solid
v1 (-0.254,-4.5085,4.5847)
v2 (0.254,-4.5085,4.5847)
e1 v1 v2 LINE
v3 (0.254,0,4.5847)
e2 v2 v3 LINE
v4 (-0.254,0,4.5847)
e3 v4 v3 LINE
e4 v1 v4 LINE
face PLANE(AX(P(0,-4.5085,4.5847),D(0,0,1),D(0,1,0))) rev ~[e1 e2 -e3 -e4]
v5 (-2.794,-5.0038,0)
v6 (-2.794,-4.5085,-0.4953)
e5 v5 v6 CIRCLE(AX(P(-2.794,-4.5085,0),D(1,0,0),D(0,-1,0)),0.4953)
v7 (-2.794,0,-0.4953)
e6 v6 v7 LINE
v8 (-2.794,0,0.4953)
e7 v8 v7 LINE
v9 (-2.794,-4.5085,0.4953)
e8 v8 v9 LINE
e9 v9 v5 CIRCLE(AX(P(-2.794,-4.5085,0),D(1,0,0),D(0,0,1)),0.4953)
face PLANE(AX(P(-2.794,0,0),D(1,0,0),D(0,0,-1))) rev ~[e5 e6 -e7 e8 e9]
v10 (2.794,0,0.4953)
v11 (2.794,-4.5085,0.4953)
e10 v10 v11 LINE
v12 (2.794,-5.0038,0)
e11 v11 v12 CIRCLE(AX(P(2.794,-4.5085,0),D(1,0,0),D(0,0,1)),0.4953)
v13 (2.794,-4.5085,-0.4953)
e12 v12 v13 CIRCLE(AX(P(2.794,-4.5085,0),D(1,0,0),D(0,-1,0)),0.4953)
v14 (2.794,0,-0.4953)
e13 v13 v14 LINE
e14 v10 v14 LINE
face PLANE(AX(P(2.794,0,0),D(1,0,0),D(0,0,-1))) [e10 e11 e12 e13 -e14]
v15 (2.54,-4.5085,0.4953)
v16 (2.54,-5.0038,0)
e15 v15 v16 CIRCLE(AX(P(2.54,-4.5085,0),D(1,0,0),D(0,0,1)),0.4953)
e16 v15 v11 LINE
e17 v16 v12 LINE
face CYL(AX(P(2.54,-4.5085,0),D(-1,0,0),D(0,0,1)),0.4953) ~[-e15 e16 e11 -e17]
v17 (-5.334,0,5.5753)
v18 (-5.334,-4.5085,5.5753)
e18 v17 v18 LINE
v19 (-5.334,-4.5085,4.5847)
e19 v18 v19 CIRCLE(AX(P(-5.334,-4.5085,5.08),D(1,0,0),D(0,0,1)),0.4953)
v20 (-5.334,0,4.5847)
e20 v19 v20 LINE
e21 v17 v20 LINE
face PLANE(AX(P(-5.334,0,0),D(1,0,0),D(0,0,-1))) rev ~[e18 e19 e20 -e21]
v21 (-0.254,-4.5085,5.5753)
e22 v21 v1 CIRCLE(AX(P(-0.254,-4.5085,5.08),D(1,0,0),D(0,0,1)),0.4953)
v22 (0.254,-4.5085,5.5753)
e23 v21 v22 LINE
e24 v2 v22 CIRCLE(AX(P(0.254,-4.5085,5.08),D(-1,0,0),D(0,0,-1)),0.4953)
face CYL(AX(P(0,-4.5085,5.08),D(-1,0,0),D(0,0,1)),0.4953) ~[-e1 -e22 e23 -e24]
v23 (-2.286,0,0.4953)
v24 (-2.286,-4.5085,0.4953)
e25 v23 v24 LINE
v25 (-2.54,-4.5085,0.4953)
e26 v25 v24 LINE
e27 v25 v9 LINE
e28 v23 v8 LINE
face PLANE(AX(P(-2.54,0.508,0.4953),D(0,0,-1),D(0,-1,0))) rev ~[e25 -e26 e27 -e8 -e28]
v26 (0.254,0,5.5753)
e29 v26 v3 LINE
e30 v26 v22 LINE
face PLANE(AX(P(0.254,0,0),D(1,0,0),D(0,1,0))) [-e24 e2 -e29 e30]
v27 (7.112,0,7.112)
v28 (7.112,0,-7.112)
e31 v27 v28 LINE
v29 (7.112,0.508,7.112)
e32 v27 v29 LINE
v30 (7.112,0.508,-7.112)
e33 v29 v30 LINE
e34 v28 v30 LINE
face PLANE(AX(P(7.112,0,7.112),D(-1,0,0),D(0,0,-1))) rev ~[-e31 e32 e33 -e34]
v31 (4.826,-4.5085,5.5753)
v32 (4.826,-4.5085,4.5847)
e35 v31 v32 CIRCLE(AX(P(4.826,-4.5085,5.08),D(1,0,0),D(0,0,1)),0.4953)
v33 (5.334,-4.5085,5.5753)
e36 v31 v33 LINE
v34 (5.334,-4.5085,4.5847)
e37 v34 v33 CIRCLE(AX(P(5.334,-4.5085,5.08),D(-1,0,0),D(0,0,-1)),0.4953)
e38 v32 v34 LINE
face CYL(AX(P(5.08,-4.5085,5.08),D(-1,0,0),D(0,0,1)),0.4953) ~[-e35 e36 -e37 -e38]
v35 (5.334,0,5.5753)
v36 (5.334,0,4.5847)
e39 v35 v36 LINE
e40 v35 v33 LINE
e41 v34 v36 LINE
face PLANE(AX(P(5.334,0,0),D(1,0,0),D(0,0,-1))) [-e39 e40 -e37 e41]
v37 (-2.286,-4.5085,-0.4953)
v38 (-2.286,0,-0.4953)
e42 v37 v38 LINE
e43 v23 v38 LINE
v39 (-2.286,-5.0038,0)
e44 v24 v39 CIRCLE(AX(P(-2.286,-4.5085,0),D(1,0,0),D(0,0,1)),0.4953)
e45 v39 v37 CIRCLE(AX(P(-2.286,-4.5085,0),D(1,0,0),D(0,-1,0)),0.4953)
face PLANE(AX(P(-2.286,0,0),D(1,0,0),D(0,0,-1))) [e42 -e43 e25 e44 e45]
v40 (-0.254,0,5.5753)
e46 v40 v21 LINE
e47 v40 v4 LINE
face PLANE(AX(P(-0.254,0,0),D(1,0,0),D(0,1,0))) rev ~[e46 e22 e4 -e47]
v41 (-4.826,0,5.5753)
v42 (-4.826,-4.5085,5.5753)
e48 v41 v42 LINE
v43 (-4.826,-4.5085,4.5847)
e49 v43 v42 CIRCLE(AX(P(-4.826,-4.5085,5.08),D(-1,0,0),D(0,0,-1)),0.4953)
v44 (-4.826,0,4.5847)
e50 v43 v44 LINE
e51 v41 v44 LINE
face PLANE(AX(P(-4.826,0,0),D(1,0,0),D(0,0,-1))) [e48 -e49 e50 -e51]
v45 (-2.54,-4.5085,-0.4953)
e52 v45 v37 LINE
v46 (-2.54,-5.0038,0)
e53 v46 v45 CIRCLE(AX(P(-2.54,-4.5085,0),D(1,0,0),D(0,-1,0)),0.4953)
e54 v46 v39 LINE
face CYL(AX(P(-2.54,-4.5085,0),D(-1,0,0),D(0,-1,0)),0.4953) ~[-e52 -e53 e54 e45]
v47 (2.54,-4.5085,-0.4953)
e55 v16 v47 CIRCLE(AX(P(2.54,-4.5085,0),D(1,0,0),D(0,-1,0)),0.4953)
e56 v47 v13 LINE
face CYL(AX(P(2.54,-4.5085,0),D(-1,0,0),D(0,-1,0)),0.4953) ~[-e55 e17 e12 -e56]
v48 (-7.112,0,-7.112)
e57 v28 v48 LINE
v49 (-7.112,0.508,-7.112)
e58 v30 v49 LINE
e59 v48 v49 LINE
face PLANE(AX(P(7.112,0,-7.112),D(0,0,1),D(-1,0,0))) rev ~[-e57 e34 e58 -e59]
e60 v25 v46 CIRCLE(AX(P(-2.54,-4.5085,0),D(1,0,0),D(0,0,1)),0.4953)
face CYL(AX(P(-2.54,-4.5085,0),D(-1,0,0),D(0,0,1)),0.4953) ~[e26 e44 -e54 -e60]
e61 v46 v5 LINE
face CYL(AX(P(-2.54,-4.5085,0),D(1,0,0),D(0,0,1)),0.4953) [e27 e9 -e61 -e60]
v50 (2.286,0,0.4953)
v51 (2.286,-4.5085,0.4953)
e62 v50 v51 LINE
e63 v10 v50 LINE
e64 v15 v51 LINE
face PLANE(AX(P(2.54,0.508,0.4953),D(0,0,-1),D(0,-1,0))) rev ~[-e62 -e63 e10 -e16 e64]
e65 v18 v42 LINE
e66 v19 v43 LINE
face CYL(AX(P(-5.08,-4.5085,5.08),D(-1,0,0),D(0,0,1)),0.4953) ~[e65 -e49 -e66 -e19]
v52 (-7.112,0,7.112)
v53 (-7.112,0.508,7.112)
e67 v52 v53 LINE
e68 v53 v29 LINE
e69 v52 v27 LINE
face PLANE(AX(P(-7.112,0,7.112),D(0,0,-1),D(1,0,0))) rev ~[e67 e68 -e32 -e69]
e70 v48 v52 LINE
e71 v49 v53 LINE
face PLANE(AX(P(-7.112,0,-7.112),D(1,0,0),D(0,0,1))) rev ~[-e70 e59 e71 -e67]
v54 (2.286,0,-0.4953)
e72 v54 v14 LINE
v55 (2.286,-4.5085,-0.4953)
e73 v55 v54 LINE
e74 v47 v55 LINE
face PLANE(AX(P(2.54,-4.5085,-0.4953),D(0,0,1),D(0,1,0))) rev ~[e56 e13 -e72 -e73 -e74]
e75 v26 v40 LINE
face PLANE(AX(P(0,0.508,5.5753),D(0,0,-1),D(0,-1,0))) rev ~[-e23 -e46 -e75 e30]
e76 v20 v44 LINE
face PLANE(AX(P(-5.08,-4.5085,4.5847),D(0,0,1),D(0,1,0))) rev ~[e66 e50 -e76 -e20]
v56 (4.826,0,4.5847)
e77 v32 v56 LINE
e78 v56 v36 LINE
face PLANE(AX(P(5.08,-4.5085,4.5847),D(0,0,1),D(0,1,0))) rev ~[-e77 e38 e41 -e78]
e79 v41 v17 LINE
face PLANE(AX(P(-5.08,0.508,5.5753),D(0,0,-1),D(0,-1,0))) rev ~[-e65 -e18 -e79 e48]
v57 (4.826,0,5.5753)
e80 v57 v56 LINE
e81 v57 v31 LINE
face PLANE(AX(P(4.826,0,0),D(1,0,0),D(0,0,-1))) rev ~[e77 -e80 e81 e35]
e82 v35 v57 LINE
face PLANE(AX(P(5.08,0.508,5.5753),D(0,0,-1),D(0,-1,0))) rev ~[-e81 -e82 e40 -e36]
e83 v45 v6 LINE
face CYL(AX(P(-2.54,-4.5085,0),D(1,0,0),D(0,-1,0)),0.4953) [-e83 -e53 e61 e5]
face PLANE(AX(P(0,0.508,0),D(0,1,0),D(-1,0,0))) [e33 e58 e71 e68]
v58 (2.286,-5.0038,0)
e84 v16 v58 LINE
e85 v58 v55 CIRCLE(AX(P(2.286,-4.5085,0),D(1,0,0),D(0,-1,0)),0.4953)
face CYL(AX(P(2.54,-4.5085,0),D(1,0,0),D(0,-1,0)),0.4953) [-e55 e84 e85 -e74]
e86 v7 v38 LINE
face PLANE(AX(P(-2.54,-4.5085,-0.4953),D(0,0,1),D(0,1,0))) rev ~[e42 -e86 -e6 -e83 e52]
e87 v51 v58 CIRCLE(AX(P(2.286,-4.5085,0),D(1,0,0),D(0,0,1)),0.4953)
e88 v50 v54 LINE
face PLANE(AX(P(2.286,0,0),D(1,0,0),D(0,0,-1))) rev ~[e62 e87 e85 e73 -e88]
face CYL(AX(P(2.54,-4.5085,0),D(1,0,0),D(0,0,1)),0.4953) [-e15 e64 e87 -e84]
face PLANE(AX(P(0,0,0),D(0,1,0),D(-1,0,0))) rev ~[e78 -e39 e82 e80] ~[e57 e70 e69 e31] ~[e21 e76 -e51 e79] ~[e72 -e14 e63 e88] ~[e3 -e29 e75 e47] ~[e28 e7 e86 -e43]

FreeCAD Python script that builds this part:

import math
import FreeCAD as App
import Part
import Sketcher
Q = App.Units.Quantity

doc = App.newDocument("Part")
body = doc.addObject("PartDesign::Body", "Body")

sketch1 = doc.addObject("Sketcher::SketchObject", "Sketch")
body.addObject(sketch1)
sketch1.AttachmentSupport = (doc.XZ_Plane, [""])
sketch1.MapMode = "FlatFace"
sketch1.addGeometry([
    Part.LineSegment(App.Vector(7, -7, 0), App.Vector(-7, -7, 0)),
    Part.LineSegment(App.Vector(-7, -7, 0), App.Vector(-7, 7, 0)),
    Part.LineSegment(App.Vector(-7, 7, 0), App.Vector(7, 7, 0)),
    Part.LineSegment(App.Vector(7, 7, 0), App.Vector(7, -7, 0)),
], False)
sketch1.addConstraint([
    Sketcher.Constraint("Coincident", 0, 2, 1, 1),
    Sketcher.Constraint("Coincident", 1, 2, 2, 1),
    Sketcher.Constraint("Coincident", 2, 2, 3, 1),
    Sketcher.Constraint("Coincident", 3, 2, 0, 1),
    Sketcher.Constraint("Horizontal", 0),
    Sketcher.Constraint("Vertical", 1),
    Sketcher.Constraint("Horizontal", 2),
    Sketcher.Constraint("Vertical", 3),
    Sketcher.Constraint("Symmetric", 0, 2, 2, 2, -1, 1),
    Sketcher.Constraint("Equal", 2, 1),
    Sketcher.Constraint("DistanceX", 0, 2, 0, 1, Q("0.56 in")),
])
pad1 = doc.addObject("PartDesign::Pad", "Pad")
body.addObject(pad1)
pad1.Profile = sketch1
pad1.Length = Q("0.02 in")
pad1.Reversed = True

sketch2 = doc.addObject("Sketcher::SketchObject", "Sketch001")
body.addObject(sketch2)
sketch2.AttachmentSupport = (doc.YZ_Plane, [""])
sketch2.MapMode = "FlatFace"
sketch2.AttachmentOffset = App.Placement(App.Vector(0, 0, -0.2 * 25.4), App.Rotation())
sketch2.addGeometry([
    Part.LineSegment(App.Vector(0.51, 5.58, 0), App.Vector(-4.51, 5.58, 0)),
    Part.ArcOfCircle(Part.Circle(App.Vector(-4.51, 5.08, 0), App.Vector(0, 0, 1), 0.5), math.radians(90), math.radians(270)),
    Part.LineSegment(App.Vector(-4.51, 4.58, 0), App.Vector(0.51, 4.58, 0)),
    Part.LineSegment(App.Vector(0.51, 4.58, 0), App.Vector(0.51, 5.58, 0)),
], False)
sketch2.addConstraint([
    Sketcher.Constraint("Tangent", 0, 2, 1, 1),
    Sketcher.Constraint("Tangent", 1, 2, 2, 1),
    Sketcher.Constraint("Coincident", 2, 2, 3, 1),
    Sketcher.Constraint("Coincident", 3, 2, 0, 1),
    Sketcher.Constraint("Horizontal", 0),
    Sketcher.Constraint("Horizontal", 2),
    Sketcher.Constraint("Vertical", 3),
    Sketcher.Constraint("DistanceY", -1, 1, 1, 3, Q("0.2 in")),
    Sketcher.Constraint("Radius", 1, Q("0.0195 in")),
    Sketcher.Constraint("DistanceX", -1, 1, 2, 2, Q("0.02 in")),
    Sketcher.Constraint("DistanceX", 0, 2, 0, 1, Q("0.1975 in")),
])
pad2 = doc.addObject("PartDesign::Pad", "Pad001")
body.addObject(pad2)
pad2.Profile = sketch2
pad2.Length = Q("0.02 in")
pad2.Midplane = True

sketch3 = doc.addObject("Sketcher::SketchObject", "Sketch002")
body.addObject(sketch3)
sketch3.AttachmentSupport = (doc.YZ_Plane, [""])
sketch3.MapMode = "FlatFace"
sketch3.addGeometry([
    Part.LineSegment(App.Vector(0.51, 5.58, 0), App.Vector(-4.51, 5.58, 0)),
    Part.ArcOfCircle(Part.Circle(App.Vector(-4.51, 5.08, 0), App.Vector(0, 0, 1), 0.5), math.radians(90), math.radians(270)),
    Part.LineSegment(App.Vector(-4.51, 4.58, 0), App.Vector(0.51, 4.58, 0)),
    Part.LineSegment(App.Vector(0.51, 4.58, 0), App.Vector(0.51, 5.58, 0)),
], False)
sketch3.addConstraint([
    Sketcher.Constraint("Tangent", 0, 2, 1, 1),
    Sketcher.Constraint("Tangent", 1, 2, 2, 1),
    Sketcher.Constraint("Coincident", 2, 2, 3, 1),
    Sketcher.Constraint("Coincident", 3, 2, 0, 1),
    Sketcher.Constraint("Horizontal", 0),
    Sketcher.Constraint("Horizontal", 2),
    Sketcher.Constraint("Vertical", 3),
    Sketcher.Constraint("DistanceY", -1, 1, 1, 3, Q("0.2 in")),
    Sketcher.Constraint("Radius", 1, Q("0.0195 in")),
    Sketcher.Constraint("DistanceX", -1, 1, 2, 2, Q("0.02 in")),
    Sketcher.Constraint("DistanceX", 0, 2, 0, 1, Q("0.1975 in")),
])
pad3 = doc.addObject("PartDesign::Pad", "Pad002")
body.addObject(pad3)
pad3.Profile = sketch3
pad3.Length = Q("0.02 in")
pad3.Midplane = True

sketch4 = doc.addObject("Sketcher::SketchObject", "Sketch003")
body.addObject(sketch4)
sketch4.AttachmentSupport = (doc.YZ_Plane, [""])
sketch4.MapMode = "FlatFace"
sketch4.AttachmentOffset = App.Placement(App.Vector(0, 0, 0.2 * 25.4), App.Rotation())
sketch4.addGeometry([
    Part.LineSegment(App.Vector(0.51, 5.58, 0), App.Vector(-4.51, 5.58, 0)),
    Part.ArcOfCircle(Part.Circle(App.Vector(-4.51, 5.08, 0), App.Vector(0, 0, 1), 0.5), math.radians(90), math.radians(270)),
    Part.LineSegment(App.Vector(-4.51, 4.58, 0), App.Vector(0.51, 4.58, 0)),
    Part.LineSegment(App.Vector(0.51, 4.58, 0), App.Vector(0.51, 5.58, 0)),
], False)
sketch4.addConstraint([
    Sketcher.Constraint("Tangent", 0, 2, 1, 1),
    Sketcher.Constraint("Tangent", 1, 2, 2, 1),
    Sketcher.Constraint("Coincident", 2, 2, 3, 1),
    Sketcher.Constraint("Coincident", 3, 2, 0, 1),
    Sketcher.Constraint("Horizontal", 0),
    Sketcher.Constraint("Horizontal", 2),
    Sketcher.Constraint("Vertical", 3),
    Sketcher.Constraint("DistanceY", -1, 1, 1, 3, Q("0.2 in")),
    Sketcher.Constraint("Radius", 1, Q("0.0195 in")),
    Sketcher.Constraint("DistanceX", -1, 1, 2, 2, Q("0.02 in")),
    Sketcher.Constraint("DistanceX", 0, 2, 0, 1, Q("0.1975 in")),
])
pad4 = doc.addObject("PartDesign::Pad", "Pad003")
body.addObject(pad4)
pad4.Profile = sketch4
pad4.Length = Q("0.02 in")
pad4.Midplane = True

sketch5 = doc.addObject("Sketcher::SketchObject", "Sketch004")
body.addObject(sketch5)
sketch5.AttachmentSupport = (doc.YZ_Plane, [""])
sketch5.MapMode = "FlatFace"
sketch5.AttachmentOffset = App.Placement(App.Vector(0, 0, -0.1 * 25.4), App.Rotation())
sketch5.addGeometry([
    Part.LineSegment(App.Vector(0.51, -0.5, 0), App.Vector(0.51, 0.5, 0)),
    Part.LineSegment(App.Vector(0.51, 0.5, 0), App.Vector(-4.51, 0.5, 0)),
    Part.ArcOfCircle(Part.Circle(App.Vector(-4.51, 0, 0), App.Vector(0, 0, 1), 0.5), math.radians(90), math.radians(270)),
    Part.LineSegment(App.Vector(-4.51, -0.5, 0), App.Vector(0.51, -0.5, 0)),
], False)
sketch5.addConstraint([
    Sketcher.Constraint("Coincident", 0, 2, 1, 1),
    Sketcher.Constraint("Tangent", 1, 2, 2, 1),
    Sketcher.Constraint("Tangent", 2, 2, 3, 1),
    Sketcher.Constraint("Coincident", 3, 2, 0, 1),
    Sketcher.Constraint("Vertical", 0),
    Sketcher.Constraint("Horizontal", 1),
    Sketcher.Constraint("Horizontal", 3),
    Sketcher.Constraint("PointOnObject", 2, 3, -1),
    Sketcher.Constraint("Radius", 2, Q("0.0195 in")),
    Sketcher.Constraint("DistanceX", -1, 1, 0, 2, Q("0.02 in")),
    Sketcher.Constraint("DistanceX", 1, 2, 1, 1, Q("0.1975 in")),
])
pad5 = doc.addObject("PartDesign::Pad", "Pad004")
body.addObject(pad5)
pad5.Profile = sketch5
pad5.Length = Q("0.02 in")
pad5.Midplane = True

sketch6 = doc.addObject("Sketcher::SketchObject", "Sketch005")
body.addObject(sketch6)
sketch6.AttachmentSupport = (doc.YZ_Plane, [""])
sketch6.MapMode = "FlatFace"
sketch6.AttachmentOffset = App.Placement(App.Vector(0, 0, 0.1 * 25.4), App.Rotation())
sketch6.addGeometry([
    Part.LineSegment(App.Vector(0.51, -0.5, 0), App.Vector(0.51, 0.5, 0)),
    Part.LineSegment(App.Vector(0.51, 0.5, 0), App.Vector(-4.51, 0.5, 0)),
    Part.ArcOfCircle(Part.Circle(App.Vector(-4.51, 0, 0), App.Vector(0, 0, 1), 0.5), math.radians(90), math.radians(270)),
    Part.LineSegment(App.Vector(-4.51, -0.5, 0), App.Vector(0.51, -0.5, 0)),
], False)
sketch6.addConstraint([
    Sketcher.Constraint("Coincident", 0, 2, 1, 1),
    Sketcher.Constraint("Tangent", 1, 2, 2, 1),
    Sketcher.Constraint("Tangent", 2, 2, 3, 1),
    Sketcher.Constraint("Coincident", 3, 2, 0, 1),
    Sketcher.Constraint("Vertical", 0),
    Sketcher.Constraint("Horizontal", 1),
    Sketcher.Constraint("Horizontal", 3),
    Sketcher.Constraint("PointOnObject", 2, 3, -1),
    Sketcher.Constraint("Radius", 2, Q("0.0195 in")),
    Sketcher.Constraint("DistanceX", -1, 1, 0, 2, Q("0.02 in")),
    Sketcher.Constraint("DistanceX", 1, 2, 1, 1, Q("0.1975 in")),
])
pad6 = doc.addObject("PartDesign::Pad", "Pad005")
body.addObject(pad6)
pad6.Profile = sketch6
pad6.Length = Q("0.02 in")
pad6.Midplane = True

doc.recompute()
